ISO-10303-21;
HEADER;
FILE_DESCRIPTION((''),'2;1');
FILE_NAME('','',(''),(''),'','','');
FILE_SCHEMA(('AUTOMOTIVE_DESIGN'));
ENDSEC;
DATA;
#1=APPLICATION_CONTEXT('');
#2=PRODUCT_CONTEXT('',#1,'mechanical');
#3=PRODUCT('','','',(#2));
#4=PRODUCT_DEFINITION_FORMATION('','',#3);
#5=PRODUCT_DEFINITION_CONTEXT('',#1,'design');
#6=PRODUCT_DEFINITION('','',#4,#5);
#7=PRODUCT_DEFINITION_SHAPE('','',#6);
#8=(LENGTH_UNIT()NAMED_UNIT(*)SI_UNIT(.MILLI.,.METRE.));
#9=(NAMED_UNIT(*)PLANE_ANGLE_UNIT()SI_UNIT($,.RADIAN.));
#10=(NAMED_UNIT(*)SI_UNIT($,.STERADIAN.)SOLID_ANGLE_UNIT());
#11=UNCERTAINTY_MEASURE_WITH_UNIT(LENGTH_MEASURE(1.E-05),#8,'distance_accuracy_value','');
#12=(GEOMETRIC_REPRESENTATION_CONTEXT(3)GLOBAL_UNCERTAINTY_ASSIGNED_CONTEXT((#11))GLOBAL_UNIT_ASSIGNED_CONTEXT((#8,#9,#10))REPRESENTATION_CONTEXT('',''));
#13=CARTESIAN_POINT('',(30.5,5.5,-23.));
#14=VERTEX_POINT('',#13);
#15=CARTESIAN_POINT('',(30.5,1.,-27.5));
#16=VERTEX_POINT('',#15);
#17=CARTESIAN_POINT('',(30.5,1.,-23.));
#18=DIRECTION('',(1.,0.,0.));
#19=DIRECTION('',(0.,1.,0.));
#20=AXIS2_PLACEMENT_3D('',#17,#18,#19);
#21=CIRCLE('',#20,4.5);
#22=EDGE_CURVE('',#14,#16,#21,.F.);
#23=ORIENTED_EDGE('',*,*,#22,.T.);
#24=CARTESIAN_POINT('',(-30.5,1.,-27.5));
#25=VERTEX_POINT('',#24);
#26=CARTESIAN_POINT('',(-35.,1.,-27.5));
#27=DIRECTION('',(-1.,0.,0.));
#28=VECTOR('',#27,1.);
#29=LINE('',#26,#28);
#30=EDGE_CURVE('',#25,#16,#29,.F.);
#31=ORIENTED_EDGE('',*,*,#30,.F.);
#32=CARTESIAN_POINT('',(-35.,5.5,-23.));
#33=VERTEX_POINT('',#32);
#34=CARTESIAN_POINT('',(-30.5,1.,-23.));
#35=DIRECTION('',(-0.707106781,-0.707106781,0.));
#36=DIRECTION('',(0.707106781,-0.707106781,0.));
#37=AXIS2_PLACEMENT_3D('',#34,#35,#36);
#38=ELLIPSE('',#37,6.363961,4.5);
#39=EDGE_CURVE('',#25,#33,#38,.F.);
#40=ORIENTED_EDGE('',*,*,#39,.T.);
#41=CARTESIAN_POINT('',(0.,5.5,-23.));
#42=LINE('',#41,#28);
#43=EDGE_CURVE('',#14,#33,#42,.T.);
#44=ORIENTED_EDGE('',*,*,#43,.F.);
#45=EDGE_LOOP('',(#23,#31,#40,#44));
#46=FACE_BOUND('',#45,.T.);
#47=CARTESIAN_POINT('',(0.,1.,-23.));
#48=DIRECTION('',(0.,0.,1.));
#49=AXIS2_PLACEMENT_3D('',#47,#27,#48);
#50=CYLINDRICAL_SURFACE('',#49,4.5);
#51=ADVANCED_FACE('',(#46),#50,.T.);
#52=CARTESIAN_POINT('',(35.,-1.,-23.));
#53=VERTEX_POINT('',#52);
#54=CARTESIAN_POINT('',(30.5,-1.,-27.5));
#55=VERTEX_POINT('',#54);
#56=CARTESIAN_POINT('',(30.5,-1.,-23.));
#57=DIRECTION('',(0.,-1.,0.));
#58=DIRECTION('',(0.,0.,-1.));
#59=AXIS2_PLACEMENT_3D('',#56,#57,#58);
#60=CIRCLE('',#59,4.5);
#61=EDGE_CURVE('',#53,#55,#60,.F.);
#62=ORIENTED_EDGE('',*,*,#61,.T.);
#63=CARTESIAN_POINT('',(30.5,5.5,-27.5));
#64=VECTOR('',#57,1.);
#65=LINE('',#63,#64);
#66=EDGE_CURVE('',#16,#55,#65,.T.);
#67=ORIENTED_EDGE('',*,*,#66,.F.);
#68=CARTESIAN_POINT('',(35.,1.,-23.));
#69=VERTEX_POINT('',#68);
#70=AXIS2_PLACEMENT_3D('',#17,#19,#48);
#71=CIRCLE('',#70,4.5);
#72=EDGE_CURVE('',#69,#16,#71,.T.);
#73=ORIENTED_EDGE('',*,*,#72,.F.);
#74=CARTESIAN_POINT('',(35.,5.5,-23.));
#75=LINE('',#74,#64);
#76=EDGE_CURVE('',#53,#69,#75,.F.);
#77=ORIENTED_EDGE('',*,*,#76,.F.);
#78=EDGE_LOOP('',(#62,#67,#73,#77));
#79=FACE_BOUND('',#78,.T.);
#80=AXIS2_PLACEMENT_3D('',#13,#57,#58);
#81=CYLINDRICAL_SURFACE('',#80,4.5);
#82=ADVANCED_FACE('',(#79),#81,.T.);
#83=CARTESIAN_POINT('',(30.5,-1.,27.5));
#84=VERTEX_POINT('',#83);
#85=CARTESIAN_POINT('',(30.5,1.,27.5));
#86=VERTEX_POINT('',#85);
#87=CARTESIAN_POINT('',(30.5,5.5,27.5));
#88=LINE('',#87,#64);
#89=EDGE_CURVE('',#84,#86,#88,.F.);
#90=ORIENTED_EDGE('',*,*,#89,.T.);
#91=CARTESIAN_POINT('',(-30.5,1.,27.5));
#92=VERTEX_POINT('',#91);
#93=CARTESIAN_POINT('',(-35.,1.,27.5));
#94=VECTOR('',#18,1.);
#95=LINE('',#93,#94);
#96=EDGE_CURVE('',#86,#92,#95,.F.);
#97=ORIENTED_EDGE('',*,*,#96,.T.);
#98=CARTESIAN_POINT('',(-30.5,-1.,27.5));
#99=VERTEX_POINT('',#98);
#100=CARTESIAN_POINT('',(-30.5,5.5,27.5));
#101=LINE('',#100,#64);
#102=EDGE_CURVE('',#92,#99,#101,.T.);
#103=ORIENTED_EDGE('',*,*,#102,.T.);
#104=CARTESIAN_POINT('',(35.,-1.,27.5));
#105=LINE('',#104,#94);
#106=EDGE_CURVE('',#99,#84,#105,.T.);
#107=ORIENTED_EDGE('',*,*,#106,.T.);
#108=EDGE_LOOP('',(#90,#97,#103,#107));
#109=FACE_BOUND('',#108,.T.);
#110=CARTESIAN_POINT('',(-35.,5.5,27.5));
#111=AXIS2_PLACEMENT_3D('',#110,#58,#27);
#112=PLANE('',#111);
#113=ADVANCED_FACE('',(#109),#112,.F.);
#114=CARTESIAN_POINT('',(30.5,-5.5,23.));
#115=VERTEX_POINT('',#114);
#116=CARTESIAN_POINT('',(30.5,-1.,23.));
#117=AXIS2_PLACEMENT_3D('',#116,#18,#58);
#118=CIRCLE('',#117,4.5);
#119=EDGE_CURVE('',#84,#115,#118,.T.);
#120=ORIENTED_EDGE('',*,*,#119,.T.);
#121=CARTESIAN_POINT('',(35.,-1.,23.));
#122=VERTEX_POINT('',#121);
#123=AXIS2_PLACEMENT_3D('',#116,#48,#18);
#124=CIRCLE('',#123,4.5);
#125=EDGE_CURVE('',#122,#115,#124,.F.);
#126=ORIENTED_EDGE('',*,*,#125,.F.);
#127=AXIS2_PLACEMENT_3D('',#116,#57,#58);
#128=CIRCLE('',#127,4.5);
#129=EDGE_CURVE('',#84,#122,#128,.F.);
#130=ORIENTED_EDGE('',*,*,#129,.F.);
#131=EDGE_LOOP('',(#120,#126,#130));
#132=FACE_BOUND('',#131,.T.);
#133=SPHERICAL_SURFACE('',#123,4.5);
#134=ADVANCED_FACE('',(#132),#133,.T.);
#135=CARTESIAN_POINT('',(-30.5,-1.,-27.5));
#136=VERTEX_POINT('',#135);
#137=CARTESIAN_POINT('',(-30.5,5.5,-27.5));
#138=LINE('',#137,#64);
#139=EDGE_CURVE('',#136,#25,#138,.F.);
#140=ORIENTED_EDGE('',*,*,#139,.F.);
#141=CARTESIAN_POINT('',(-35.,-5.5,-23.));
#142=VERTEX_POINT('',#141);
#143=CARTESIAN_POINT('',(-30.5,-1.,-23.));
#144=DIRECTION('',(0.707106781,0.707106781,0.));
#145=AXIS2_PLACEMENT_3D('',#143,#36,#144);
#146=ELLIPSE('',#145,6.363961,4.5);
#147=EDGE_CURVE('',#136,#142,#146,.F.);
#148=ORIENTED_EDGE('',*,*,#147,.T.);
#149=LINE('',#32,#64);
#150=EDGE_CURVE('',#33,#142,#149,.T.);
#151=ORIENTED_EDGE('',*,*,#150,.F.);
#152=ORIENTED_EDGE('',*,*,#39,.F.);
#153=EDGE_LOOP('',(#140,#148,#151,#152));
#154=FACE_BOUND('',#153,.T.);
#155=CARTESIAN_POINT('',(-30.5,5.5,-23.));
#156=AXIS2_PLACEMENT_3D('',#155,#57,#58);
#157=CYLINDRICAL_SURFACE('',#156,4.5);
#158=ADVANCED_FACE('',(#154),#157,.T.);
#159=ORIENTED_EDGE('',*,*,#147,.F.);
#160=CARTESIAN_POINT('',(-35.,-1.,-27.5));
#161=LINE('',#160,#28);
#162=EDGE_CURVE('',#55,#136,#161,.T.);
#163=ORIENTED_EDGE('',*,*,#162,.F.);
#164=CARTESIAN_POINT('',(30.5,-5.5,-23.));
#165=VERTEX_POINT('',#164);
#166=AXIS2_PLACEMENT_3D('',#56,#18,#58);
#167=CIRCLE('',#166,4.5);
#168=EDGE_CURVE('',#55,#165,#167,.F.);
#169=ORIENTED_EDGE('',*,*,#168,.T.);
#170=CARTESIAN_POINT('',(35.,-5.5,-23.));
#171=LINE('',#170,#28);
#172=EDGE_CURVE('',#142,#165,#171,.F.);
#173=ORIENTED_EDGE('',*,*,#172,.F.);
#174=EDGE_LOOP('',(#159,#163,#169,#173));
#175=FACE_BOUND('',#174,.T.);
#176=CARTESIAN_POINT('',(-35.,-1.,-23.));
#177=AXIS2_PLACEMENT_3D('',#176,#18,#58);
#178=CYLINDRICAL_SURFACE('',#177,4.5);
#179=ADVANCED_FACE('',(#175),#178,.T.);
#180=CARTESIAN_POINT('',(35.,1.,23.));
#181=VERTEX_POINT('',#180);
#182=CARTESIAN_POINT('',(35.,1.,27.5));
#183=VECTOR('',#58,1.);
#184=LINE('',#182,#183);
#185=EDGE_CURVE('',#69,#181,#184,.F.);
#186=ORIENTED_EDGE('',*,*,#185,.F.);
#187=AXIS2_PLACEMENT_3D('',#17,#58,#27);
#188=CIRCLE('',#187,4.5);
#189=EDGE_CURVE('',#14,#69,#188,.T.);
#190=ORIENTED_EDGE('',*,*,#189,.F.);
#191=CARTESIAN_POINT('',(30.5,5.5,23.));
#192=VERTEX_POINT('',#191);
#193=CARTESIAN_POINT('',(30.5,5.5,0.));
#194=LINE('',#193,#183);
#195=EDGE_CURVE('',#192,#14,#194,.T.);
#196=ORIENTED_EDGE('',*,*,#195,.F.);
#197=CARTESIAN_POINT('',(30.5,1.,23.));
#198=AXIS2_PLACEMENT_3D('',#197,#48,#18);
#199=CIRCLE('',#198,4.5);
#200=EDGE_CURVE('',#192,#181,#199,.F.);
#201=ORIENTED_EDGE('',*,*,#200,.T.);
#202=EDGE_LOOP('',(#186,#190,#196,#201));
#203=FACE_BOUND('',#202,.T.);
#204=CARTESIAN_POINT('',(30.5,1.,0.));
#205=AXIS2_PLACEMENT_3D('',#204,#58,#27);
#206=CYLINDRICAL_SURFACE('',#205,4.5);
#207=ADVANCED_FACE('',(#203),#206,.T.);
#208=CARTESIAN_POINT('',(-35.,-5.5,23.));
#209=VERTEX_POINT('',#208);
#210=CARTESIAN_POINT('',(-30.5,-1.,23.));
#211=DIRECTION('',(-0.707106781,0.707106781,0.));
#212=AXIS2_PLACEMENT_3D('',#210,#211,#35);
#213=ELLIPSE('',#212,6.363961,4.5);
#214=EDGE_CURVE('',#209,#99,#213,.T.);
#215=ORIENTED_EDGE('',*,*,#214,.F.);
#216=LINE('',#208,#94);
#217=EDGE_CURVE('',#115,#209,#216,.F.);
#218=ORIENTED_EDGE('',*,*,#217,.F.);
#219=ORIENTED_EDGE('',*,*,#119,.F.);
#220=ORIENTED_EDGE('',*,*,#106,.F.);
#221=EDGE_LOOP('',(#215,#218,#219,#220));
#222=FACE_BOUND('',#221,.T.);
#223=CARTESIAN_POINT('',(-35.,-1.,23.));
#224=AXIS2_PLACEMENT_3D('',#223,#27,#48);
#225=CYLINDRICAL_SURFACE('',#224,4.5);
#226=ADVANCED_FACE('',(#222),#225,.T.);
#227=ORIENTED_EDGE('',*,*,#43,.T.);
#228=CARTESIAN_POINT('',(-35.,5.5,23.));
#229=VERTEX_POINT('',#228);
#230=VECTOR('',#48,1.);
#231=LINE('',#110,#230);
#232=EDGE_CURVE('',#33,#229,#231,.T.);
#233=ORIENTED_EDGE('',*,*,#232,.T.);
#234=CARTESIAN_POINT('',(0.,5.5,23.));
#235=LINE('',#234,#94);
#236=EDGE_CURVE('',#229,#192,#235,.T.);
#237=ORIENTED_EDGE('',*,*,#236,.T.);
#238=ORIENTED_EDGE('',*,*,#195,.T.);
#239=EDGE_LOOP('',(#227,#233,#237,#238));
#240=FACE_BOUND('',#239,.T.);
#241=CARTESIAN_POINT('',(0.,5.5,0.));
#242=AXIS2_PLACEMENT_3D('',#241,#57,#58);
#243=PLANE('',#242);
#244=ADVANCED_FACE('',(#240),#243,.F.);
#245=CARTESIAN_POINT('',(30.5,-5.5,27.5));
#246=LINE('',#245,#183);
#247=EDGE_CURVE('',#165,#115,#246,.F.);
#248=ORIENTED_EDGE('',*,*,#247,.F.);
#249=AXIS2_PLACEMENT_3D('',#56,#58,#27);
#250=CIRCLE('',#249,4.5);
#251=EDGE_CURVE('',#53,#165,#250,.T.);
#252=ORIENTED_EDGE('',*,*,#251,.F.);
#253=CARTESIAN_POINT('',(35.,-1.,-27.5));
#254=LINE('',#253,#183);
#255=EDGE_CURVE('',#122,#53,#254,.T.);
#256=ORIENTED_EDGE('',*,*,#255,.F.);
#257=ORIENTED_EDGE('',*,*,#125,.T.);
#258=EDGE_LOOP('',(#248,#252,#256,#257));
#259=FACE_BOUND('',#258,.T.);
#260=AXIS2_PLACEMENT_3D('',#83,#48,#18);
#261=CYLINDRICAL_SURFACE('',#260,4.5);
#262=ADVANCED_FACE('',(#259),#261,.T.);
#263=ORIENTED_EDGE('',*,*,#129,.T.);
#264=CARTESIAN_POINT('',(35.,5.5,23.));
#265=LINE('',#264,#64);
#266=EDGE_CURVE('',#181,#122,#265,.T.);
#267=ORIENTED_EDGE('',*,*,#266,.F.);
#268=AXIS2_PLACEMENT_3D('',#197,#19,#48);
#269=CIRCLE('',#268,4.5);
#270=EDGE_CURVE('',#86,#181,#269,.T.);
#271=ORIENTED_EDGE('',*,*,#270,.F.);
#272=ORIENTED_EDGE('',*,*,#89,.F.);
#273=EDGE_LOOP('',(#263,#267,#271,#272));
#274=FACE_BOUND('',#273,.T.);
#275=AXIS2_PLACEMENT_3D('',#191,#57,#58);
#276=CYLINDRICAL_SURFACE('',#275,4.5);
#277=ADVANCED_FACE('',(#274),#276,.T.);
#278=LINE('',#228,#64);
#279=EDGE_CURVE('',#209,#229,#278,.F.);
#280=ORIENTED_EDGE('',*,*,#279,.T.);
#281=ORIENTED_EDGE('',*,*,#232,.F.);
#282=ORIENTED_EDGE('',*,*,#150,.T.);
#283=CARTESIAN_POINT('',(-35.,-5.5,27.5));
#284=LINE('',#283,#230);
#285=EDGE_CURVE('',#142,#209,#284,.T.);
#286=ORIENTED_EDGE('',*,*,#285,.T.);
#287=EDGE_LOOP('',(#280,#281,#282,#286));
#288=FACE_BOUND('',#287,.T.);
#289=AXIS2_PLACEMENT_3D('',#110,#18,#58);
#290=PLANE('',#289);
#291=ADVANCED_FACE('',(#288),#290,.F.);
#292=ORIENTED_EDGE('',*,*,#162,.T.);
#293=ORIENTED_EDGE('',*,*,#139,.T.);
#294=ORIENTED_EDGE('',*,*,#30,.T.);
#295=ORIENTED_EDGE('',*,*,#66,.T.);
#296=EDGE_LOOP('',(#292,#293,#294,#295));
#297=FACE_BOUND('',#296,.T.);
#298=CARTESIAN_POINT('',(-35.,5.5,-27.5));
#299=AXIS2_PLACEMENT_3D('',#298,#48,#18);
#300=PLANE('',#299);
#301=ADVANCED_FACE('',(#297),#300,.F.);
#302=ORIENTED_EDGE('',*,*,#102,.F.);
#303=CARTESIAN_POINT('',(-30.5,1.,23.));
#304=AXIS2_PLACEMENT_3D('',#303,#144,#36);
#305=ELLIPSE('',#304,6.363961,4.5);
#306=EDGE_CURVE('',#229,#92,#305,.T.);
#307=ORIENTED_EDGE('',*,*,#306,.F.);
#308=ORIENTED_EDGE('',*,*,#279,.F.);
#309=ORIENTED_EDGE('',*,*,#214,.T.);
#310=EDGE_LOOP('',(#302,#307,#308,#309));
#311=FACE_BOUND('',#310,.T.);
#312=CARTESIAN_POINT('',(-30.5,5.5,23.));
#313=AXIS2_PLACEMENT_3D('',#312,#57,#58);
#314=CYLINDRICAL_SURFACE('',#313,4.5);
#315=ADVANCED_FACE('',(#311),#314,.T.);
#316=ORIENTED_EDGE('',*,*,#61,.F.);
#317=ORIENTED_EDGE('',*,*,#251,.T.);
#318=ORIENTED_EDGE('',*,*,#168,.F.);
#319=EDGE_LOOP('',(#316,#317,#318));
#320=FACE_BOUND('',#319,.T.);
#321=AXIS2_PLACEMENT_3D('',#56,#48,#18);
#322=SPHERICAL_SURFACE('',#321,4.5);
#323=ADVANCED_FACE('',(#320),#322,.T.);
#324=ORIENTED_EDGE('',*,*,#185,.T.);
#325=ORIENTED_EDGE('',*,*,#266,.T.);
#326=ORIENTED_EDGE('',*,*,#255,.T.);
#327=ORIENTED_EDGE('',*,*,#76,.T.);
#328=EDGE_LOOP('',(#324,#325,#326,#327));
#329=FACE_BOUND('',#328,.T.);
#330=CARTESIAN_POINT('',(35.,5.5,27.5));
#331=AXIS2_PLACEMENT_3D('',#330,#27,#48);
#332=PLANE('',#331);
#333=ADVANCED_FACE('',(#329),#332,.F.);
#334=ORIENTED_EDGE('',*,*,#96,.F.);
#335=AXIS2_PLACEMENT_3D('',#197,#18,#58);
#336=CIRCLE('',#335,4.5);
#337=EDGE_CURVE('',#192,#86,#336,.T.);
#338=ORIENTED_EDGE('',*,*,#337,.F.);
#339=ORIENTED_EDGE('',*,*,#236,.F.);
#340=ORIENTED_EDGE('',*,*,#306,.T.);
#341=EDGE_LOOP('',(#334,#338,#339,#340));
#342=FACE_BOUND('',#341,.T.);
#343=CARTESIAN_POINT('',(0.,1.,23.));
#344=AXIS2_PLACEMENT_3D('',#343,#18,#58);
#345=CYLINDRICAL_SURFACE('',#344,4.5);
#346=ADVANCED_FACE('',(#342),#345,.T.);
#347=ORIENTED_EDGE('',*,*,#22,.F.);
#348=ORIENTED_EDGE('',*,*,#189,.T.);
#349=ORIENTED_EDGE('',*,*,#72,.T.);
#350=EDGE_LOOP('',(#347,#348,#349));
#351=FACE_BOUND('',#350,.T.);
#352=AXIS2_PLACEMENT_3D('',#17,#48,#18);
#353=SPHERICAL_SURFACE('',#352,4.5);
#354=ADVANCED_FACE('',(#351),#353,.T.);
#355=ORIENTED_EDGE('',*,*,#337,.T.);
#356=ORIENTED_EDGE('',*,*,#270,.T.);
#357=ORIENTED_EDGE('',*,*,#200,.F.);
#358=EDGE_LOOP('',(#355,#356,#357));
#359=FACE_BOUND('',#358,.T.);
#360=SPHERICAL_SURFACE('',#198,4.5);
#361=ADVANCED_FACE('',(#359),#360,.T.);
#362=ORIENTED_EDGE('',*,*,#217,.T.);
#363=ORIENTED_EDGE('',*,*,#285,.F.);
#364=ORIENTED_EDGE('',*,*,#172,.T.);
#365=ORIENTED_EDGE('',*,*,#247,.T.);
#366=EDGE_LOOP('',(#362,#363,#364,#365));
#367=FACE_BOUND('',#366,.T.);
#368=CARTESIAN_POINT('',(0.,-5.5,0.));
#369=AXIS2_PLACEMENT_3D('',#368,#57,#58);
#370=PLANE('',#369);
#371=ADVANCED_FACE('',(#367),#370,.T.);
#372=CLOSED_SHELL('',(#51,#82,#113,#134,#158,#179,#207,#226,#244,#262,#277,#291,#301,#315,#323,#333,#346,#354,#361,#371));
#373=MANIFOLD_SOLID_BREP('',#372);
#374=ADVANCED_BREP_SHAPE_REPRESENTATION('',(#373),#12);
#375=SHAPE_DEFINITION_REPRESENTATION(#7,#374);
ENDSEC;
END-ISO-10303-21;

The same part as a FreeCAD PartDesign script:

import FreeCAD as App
import Part
import Sketcher
from FreeCAD import Vector


def edges_at(feature, points):
    """Names of the edges that pass closest to the given points."""
    edges = feature.Shape.Edges
    near = lambda p: min(range(len(edges)), key=lambda i: edges[i].distToShape(Part.Vertex(*p))[0])
    return sorted({f"Edge{near(p) + 1}" for p in points})

doc = App.newDocument("Part")
params = doc.addObject("Spreadsheet::Sheet", "Params")
for row, (alias, value) in enumerate([
    ("sketch1_width", "70 mm"),
    ("sketch1_height", "55 mm"),
    ("pad1_length", "11 mm"),
    ("fillet_radius", "4.5 mm"),
], start=1):
    params.set(f"A{row}", alias)
    params.set(f"B{row}", "=" + value)
    params.setAlias(f"B{row}", alias)

body = doc.addObject("PartDesign::Body", "Body")

# Sketch on XZ plane
sketch1 = doc.addObject("Sketcher::SketchObject", "Sketch")
body.addObject(sketch1)
sketch1.AttachmentSupport = (doc.XZ_Plane, [""])
sketch1.MapMode = "FlatFace"
sketch1.addGeometry(Part.LineSegment(Vector(-35, -27.5, 0), Vector(-35, 27.5, 0)), False)
sketch1.addGeometry(Part.LineSegment(Vector(-35, 27.5, 0), Vector(35, 27.5, 0)), False)
sketch1.addGeometry(Part.LineSegment(Vector(35, 27.5, 0), Vector(35, -27.5, 0)), False)
sketch1.addGeometry(Part.LineSegment(Vector(35, -27.5, 0), Vector(-35, -27.5, 0)), False)
sketch1.addConstraint(Sketcher.Constraint("Coincident", 0, 2, 1, 1))
sketch1.addConstraint(Sketcher.Constraint("Coincident", 1, 2, 2, 1))
sketch1.addConstraint(Sketcher.Constraint("Coincident", 2, 2, 3, 1))
sketch1.addConstraint(Sketcher.Constraint("Coincident", 3, 2, 0, 1))
sketch1.addConstraint(Sketcher.Constraint("Vertical", 0))
sketch1.addConstraint(Sketcher.Constraint("Horizontal", 1))
sketch1.addConstraint(Sketcher.Constraint("Vertical", 2))
sketch1.addConstraint(Sketcher.Constraint("Horizontal", 3))
sketch1.addConstraint(Sketcher.Constraint("Symmetric", 0, 2, 2, 2, -1, 1))
sketch1.addConstraint(Sketcher.Constraint("DistanceX", 1, 1, 1, 2, 70.0))
sketch1.addConstraint(Sketcher.Constraint("DistanceY", 0, 1, 0, 2, 55.0))
sketch1.setExpression("Constraints[9]", "Params.sketch1_width")
sketch1.setExpression("Constraints[10]", "Params.sketch1_height")
pad1 = doc.addObject("PartDesign::Pad", "Pad")
body.addObject(pad1)
pad1.Profile = sketch1
pad1.setExpression("Length", "Params.pad1_length")
pad1.Midplane = True
doc.recompute()

fillet = doc.addObject("PartDesign::Fillet", "Fillet")
body.addObject(fillet)
fillet.Base = (pad1, edges_at(pad1, [
    (0, 5.5, 27.5),
    (35, 5.5, 0),
    (0, -5.5, 27.5),
    (0, -5.5, -27.5),
    (35, -5.5, 0),
    (35, 0, 27.5),
    (-35, 0, 27.5),
    (-35, 0, -27.5),
    (35, 0, -27.5),
    (0, 5.5, -27.5),
]))
fillet.setExpression("Radius", "Params.fillet_radius")

doc.recompute()
